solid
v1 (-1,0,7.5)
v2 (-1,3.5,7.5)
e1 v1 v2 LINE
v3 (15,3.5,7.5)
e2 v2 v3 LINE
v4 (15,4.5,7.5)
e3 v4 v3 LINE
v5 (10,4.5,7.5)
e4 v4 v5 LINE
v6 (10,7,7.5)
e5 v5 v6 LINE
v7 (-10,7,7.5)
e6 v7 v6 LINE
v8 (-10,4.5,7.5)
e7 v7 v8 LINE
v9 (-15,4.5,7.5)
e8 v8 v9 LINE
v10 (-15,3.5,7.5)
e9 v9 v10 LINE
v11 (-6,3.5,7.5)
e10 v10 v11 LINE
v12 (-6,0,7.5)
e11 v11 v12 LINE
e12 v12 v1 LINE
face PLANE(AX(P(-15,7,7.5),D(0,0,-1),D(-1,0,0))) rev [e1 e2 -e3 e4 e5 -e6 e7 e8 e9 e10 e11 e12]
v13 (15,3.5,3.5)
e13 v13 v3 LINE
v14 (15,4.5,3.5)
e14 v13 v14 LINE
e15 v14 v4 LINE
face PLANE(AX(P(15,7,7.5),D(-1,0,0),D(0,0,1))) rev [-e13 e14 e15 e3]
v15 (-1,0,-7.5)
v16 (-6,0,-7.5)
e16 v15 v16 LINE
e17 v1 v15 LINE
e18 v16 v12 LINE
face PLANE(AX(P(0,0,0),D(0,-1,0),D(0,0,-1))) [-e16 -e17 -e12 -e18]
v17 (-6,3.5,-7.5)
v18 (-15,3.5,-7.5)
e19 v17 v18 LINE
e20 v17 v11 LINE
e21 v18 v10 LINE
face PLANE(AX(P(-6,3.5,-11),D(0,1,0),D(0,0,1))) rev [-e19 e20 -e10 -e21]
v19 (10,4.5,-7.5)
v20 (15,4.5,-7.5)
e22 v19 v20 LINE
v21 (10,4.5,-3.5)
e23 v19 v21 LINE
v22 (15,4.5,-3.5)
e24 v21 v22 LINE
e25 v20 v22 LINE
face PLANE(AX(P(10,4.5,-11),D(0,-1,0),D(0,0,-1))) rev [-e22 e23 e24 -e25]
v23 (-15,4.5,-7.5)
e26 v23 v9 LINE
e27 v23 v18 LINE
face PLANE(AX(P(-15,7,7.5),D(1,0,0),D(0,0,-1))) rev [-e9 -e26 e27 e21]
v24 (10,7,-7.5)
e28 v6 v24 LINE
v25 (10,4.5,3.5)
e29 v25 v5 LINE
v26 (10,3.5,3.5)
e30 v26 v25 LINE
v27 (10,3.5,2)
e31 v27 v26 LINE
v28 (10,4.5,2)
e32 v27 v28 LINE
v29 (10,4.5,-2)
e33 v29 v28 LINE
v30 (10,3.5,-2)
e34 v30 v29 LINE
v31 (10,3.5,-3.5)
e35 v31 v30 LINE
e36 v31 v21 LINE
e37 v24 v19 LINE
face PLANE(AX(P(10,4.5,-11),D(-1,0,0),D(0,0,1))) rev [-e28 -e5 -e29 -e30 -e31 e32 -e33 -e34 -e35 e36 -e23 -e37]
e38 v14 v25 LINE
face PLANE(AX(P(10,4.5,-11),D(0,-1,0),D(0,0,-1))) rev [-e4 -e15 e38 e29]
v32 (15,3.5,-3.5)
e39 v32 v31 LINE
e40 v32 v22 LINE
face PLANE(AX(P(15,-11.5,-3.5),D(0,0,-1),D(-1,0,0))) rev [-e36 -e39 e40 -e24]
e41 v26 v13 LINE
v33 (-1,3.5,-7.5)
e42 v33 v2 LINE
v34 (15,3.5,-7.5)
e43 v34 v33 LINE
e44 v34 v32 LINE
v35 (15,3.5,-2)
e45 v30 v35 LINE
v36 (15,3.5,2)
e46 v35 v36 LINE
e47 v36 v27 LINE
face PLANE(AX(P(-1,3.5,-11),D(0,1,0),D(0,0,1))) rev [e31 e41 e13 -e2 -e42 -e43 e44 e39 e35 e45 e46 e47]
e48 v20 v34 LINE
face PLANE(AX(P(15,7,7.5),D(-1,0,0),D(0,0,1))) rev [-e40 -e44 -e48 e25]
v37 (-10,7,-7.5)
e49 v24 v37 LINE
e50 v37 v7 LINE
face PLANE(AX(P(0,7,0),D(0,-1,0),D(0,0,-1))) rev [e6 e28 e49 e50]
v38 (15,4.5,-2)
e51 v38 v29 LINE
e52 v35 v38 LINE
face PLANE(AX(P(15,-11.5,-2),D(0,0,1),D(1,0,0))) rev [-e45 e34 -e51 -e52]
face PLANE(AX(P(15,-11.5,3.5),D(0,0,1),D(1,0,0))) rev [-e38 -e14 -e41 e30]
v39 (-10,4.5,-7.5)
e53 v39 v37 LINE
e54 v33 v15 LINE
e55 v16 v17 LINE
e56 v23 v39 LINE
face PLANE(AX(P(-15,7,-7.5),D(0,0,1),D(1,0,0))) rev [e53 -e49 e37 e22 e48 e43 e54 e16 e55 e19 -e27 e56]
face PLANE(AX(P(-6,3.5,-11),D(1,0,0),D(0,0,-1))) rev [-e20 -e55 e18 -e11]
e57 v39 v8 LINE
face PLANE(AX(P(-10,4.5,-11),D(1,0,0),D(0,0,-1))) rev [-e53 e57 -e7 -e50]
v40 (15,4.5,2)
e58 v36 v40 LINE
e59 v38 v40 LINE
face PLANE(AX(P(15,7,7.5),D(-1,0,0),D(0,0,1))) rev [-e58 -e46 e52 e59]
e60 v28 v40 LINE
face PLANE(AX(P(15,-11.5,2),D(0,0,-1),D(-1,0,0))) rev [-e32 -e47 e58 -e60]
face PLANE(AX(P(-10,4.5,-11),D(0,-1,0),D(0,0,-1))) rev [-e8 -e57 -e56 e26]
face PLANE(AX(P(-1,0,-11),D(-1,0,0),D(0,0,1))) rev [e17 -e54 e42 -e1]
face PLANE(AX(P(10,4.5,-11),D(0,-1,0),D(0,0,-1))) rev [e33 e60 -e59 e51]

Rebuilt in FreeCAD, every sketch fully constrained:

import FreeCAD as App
import Part
import Sketcher

V = App.Vector

doc = App.newDocument("Part")
body = doc.addObject("PartDesign::Body", "Body")

# Sketch on XZ plane
sketch1 = body.newObject("Sketcher::SketchObject", "Sketch")
sketch1.AttachmentSupport = (doc.getObject("XZ_Plane"), [""])
sketch1.MapMode = "FlatFace"
sketch1.addGeometry(Part.LineSegment(V(-15, -8, 0), V(-15, 8, 0)), False)
sketch1.addGeometry(Part.LineSegment(V(-15, 8, 0), V(15, 8, 0)), False)
sketch1.addGeometry(Part.LineSegment(V(15, 8, 0), V(15, -8, 0)), False)
sketch1.addGeometry(Part.LineSegment(V(15, -8, 0), V(-15, -8, 0)), False)
sketch1.addConstraint(Sketcher.Constraint("Coincident", 0, 2, 1, 1))
sketch1.addConstraint(Sketcher.Constraint("Coincident", 1, 2, 2, 1))
sketch1.addConstraint(Sketcher.Constraint("Coincident", 2, 2, 3, 1))
sketch1.addConstraint(Sketcher.Constraint("Coincident", 3, 2, 0, 1))
sketch1.addConstraint(Sketcher.Constraint("Vertical", 0))
sketch1.addConstraint(Sketcher.Constraint("Horizontal", 1))
sketch1.addConstraint(Sketcher.Constraint("Vertical", 2))
sketch1.addConstraint(Sketcher.Constraint("Horizontal", 3))
sketch1.addConstraint(Sketcher.Constraint("Symmetric", 0, 2, 2, 2, -1, 1))
sketch1.addConstraint(Sketcher.Constraint("DistanceX", 1, 1, 1, 2, 30.0))
sketch1.addConstraint(Sketcher.Constraint("DistanceY", 0, 1, 0, 2, 15.0))
pad1 = body.newObject("PartDesign::Pad", "Pad")
pad1.Profile = sketch1
pad1.Length = 7
pad1.Reversed = True

# Sketch on XY plane
sketch2 = body.newObject("Sketcher::SketchObject", "Sketch001")
sketch2.AttachmentSupport = (doc.getObject("XY_Plane"), [""])
sketch2.MapMode = "FlatFace"
sketch2.AttachmentOffset = App.Placement(V(0, 0, 7.5), App.Rotation())
sketch2.addGeometry(Part.LineSegment(V(-15, 7, 0), V(-15, 4.5, 0)), False)
sketch2.addGeometry(Part.LineSegment(V(-15, 4.5, 0), V(-10, 4.5, 0)), False)
sketch2.addGeometry(Part.LineSegment(V(-10, 4.5, 0), V(-10, 7, 0)), False)
sketch2.addGeometry(Part.LineSegment(V(-10, 7, 0), V(-15, 7, 0)), False)
sketch2.addGeometry(Part.LineSegment(V(-15, 3.5, 0), V(-15, 0, 0)), False)
sketch2.addGeometry(Part.LineSegment(V(-15, 0, 0), V(-6, 0, 0)), False)
sketch2.addGeometry(Part.LineSegment(V(-6, 0, 0), V(-6, 3.5, 0)), False)
sketch2.addGeometry(Part.LineSegment(V(-6, 3.5, 0), V(-15, 3.5, 0)), False)
sketch2.addGeometry(Part.LineSegment(V(10, 7, 0), V(10, 4.5, 0)), False)
sketch2.addGeometry(Part.LineSegment(V(10, 4.5, 0), V(15, 4.5, 0)), False)
sketch2.addGeometry(Part.LineSegment(V(15, 4.5, 0), V(15, 7, 0)), False)
sketch2.addGeometry(Part.LineSegment(V(15, 7, 0), V(10, 7, 0)), False)
sketch2.addGeometry(Part.LineSegment(V(-1, 3.5, 0), V(-1, 0, 0)), False)
sketch2.addGeometry(Part.LineSegment(V(-1, 0, 0), V(15, 0, 0)), False)
sketch2.addGeometry(Part.LineSegment(V(15, 0, 0), V(15, 3.5, 0)), False)
sketch2.addGeometry(Part.LineSegment(V(15, 3.5, 0), V(-1, 3.5, 0)), False)
sketch2.addConstraint(Sketcher.Constraint("Coincident", 0, 2, 1, 1))
sketch2.addConstraint(Sketcher.Constraint("Coincident", 1, 2, 2, 1))
sketch2.addConstraint(Sketcher.Constraint("Coincident", 2, 2, 3, 1))
sketch2.addConstraint(Sketcher.Constraint("Coincident", 3, 2, 0, 1))
sketch2.addConstraint(Sketcher.Constraint("Coincident", 4, 2, 5, 1))
sketch2.addConstraint(Sketcher.Constraint("Coincident", 5, 2, 6, 1))
sketch2.addConstraint(Sketcher.Constraint("Coincident", 6, 2, 7, 1))
sketch2.addConstraint(Sketcher.Constraint("Coincident", 7, 2, 4, 1))
sketch2.addConstraint(Sketcher.Constraint("Coincident", 8, 2, 9, 1))
sketch2.addConstraint(Sketcher.Constraint("Coincident", 9, 2, 10, 1))
sketch2.addConstraint(Sketcher.Constraint("Coincident", 10, 2, 11, 1))
sketch2.addConstraint(Sketcher.Constraint("Coincident", 11, 2, 8, 1))
sketch2.addConstraint(Sketcher.Constraint("Coincident", 12, 2, 13, 1))
sketch2.addConstraint(Sketcher.Constraint("Coincident", 13, 2, 14, 1))
sketch2.addConstraint(Sketcher.Constraint("Coincident", 14, 2, 15, 1))
sketch2.addConstraint(Sketcher.Constraint("Coincident", 15, 2, 12, 1))
sketch2.addConstraint(Sketcher.Constraint("Vertical", 0))
sketch2.addConstraint(Sketcher.Constraint("Horizontal", 1))
sketch2.addConstraint(Sketcher.Constraint("Vertical", 2))
sketch2.addConstraint(Sketcher.Constraint("Horizontal", 3))
sketch2.addConstraint(Sketcher.Constraint("Vertical", 4))
sketch2.addConstraint(Sketcher.Constraint("Horizontal", 5))
sketch2.addConstraint(Sketcher.Constraint("Vertical", 6))
sketch2.addConstraint(Sketcher.Constraint("Horizontal", 7))
sketch2.addConstraint(Sketcher.Constraint("Vertical", 8))
sketch2.addConstraint(Sketcher.Constraint("Horizontal", 9))
sketch2.addConstraint(Sketcher.Constraint("Vertical", 10))
sketch2.addConstraint(Sketcher.Constraint("Horizontal", 11))
sketch2.addConstraint(Sketcher.Constraint("Vertical", 12))
sketch2.addConstraint(Sketcher.Constraint("Horizontal", 13))
sketch2.addConstraint(Sketcher.Constraint("Vertical", 14))
sketch2.addConstraint(Sketcher.Constraint("Horizontal", 15))
sketch2.addConstraint(Sketcher.Constraint("Symmetric", 4, 2, 13, 2, -1, 1))
sketch2.addConstraint(Sketcher.Constraint("Symmetric", 1, 2, 8, 2, -2))
sketch2.addConstraint(Sketcher.Constraint("Symmetric", 3, 2, 10, 2, -2))
sketch2.addConstraint(Sketcher.Constraint("PointOnObject", 4, 2, -1))
sketch2.addConstraint(Sketcher.Constraint("Horizontal", 7, 2, 14, 2))
sketch2.addConstraint(Sketcher.Constraint("Vertical", 3, 2, 4, 2))
sketch2.addConstraint(Sketcher.Constraint("DistanceX", 1, 1, 1, 2, 5.0))
sketch2.addConstraint(Sketcher.Constraint("DistanceX", 5, 1, 5, 2, 9.0))
sketch2.addConstraint(Sketcher.Constraint("DistanceX", 13, 1, 13, 2, 16.0))
sketch2.addConstraint(Sketcher.Constraint("DistanceY", 0, 2, 0, 1, 2.5))
sketch2.addConstraint(Sketcher.Constraint("DistanceY", 4, 2, 4, 1, 3.5))
sketch2.addConstraint(Sketcher.Constraint("DistanceX", 0, 2, -1, 1, 15.0))
sketch2.addConstraint(Sketcher.Constraint("DistanceY", -1, 1, 2, 2, 7.0))
pocket1 = body.newObject("PartDesign::Pocket", "Pocket")
pocket1.Profile = sketch2
pocket1.Length = 37
pocket1.Midplane = True

# Sketch on XZ plane
sketch3 = body.newObject("Sketcher::SketchObject", "Sketch002")
sketch3.AttachmentSupport = (doc.getObject("XZ_Plane"), [""])
sketch3.MapMode = "FlatFace"
sketch3.AttachmentOffset = App.Placement(V(0, 0, -7), App.Rotation())
sketch3.addGeometry(Part.LineSegment(V(10, -3.5, 0), V(10, -2, 0)), False)
sketch3.addGeometry(Part.LineSegment(V(10, -2, 0), V(15, -2, 0)), False)
sketch3.addGeometry(Part.LineSegment(V(15, -2, 0), V(15, -3.5, 0)), False)
sketch3.addGeometry(Part.LineSegment(V(15, -3.5, 0), V(10, -3.5, 0)), False)
sketch3.addGeometry(Part.LineSegment(V(10, 2, 0), V(10, 3.5, 0)), False)
sketch3.addGeometry(Part.LineSegment(V(10, 3.5, 0), V(15, 3.5, 0)), False)
sketch3.addGeometry(Part.LineSegment(V(15, 3.5, 0), V(15, 2, 0)), False)
sketch3.addGeometry(Part.LineSegment(V(15, 2, 0), V(10, 2, 0)), False)
sketch3.addConstraint(Sketcher.Constraint("Coincident", 0, 2, 1, 1))
sketch3.addConstraint(Sketcher.Constraint("Coincident", 1, 2, 2, 1))
sketch3.addConstraint(Sketcher.Constraint("Coincident", 2, 2, 3, 1))
sketch3.addConstraint(Sketcher.Constraint("Coincident", 3, 2, 0, 1))
sketch3.addConstraint(Sketcher.Constraint("Coincident", 4, 2, 5, 1))
sketch3.addConstraint(Sketcher.Constraint("Coincident", 5, 2, 6, 1))
sketch3.addConstraint(Sketcher.Constraint("Coincident", 6, 2, 7, 1))
sketch3.addConstraint(Sketcher.Constraint("Coincident", 7, 2, 4, 1))
sketch3.addConstraint(Sketcher.Constraint("Vertical", 0))
sketch3.addConstraint(Sketcher.Constraint("Horizontal", 1))
sketch3.addConstraint(Sketcher.Constraint("Vertical", 2))
sketch3.addConstraint(Sketcher.Constraint("Horizontal", 3))
sketch3.addConstraint(Sketcher.Constraint("Vertical", 4))
sketch3.addConstraint(Sketcher.Constraint("Horizontal", 5))
sketch3.addConstraint(Sketcher.Constraint("Vertical", 6))
sketch3.addConstraint(Sketcher.Constraint("Horizontal", 7))
sketch3.addConstraint(Sketcher.Constraint("Symmetric", 3, 2, 4, 2, -1))
sketch3.addConstraint(Sketcher.Constraint("Symmetric", 1, 2, 6, 2, -1))
sketch3.addConstraint(Sketcher.Constraint("DistanceX", 1, 1, 1, 2, 5.0))
sketch3.addConstraint(Sketcher.Constraint("DistanceY", 0, 1, 0, 2, 1.5))
sketch3.addConstraint(Sketcher.Constraint("DistanceX", -1, 1, 0, 2, 10.0))
sketch3.addConstraint(Sketcher.Constraint("DistanceY", 0, 2, -1, 1, 2.0))
pocket2 = body.newObject("PartDesign::Pocket", "Pocket001")
pocket2.Profile = sketch3
pocket2.Length = 37
pocket2.Midplane = True

doc.recompute()
